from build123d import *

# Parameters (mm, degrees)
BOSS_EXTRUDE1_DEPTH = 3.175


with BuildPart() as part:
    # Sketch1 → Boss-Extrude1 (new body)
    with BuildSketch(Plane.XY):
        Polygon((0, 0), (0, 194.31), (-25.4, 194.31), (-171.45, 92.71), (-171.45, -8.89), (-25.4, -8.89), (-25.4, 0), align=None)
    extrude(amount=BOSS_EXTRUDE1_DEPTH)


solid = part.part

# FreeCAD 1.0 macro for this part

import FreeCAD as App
import Part
import Sketcher
Q = App.Units.Quantity

doc = App.newDocument("Part")
body = doc.addObject("PartDesign::Body", "Body")

sketch1 = body.newObject("Sketcher::SketchObject", "Sketch")
sketch1.AttachmentSupport = (doc.getObject("XY_Plane"), [""])
sketch1.MapMode = "FlatFace"
sketch1.addGeometry([
    Part.LineSegment(App.Vector(0, 0, 0), App.Vector(0, 194.31, 0)),
    Part.LineSegment(App.Vector(0, 194.31, 0), App.Vector(-25.4, 194.31, 0)),
    Part.LineSegment(App.Vector(-25.4, 194.31, 0), App.Vector(-171.45, 92.71, 0)),
    Part.LineSegment(App.Vector(-171.45, 92.71, 0), App.Vector(-171.45, -8.89, 0)),
    Part.LineSegment(App.Vector(-171.45, -8.89, 0), App.Vector(-25.4, -8.89, 0)),
    Part.LineSegment(App.Vector(-25.4, -8.89, 0), App.Vector(-25.4, 0, 0)),
    Part.LineSegment(App.Vector(-25.4, 0, 0), App.Vector(0, 0, 0)),
], False)
sketch1.addConstraint([
    Sketcher.Constraint("Coincident", 0, 2, 1, 1),
    Sketcher.Constraint("Coincident", 1, 2, 2, 1),
    Sketcher.Constraint("Coincident", 2, 2, 3, 1),
    Sketcher.Constraint("Coincident", 3, 2, 4, 1),
    Sketcher.Constraint("Coincident", 4, 2, 5, 1),
    Sketcher.Constraint("Coincident", 5, 2, 6, 1),
    Sketcher.Constraint("Coincident", 6, 2, 0, 1),
    Sketcher.Constraint("Vertical", 0),
    Sketcher.Constraint("Horizontal", 1),
    Sketcher.Constraint("Vertical", 3),
    Sketcher.Constraint("Horizontal", 4),
    Sketcher.Constraint("Vertical", 5),
    Sketcher.Constraint("Horizontal", 6),
    Sketcher.Constraint("Coincident", 6, 2, -1, 1),
    Sketcher.Constraint("Vertical", 1, 2, 4, 2),
    Sketcher.Constraint("DistanceX", 1, 2, 1, 1, Q("1 in")),
    Sketcher.Constraint("DistanceY", 3, 2, 3, 1, Q("4 in")),
    Sketcher.Constraint("DistanceY", 2, 2, 1, 2, Q("4 in")),
    Sketcher.Constraint("DistanceX", 4, 1, 4, 2, Q("5.75 in")),
    Sketcher.Constraint("DistanceY", 0, 1, 0, 2, Q("7.65 in")),
])
pad1 = body.newObject("PartDesign::Pad", "Pad")
pad1.Profile = sketch1
pad1.Length = Q("0.125 in")

doc.recompute()
